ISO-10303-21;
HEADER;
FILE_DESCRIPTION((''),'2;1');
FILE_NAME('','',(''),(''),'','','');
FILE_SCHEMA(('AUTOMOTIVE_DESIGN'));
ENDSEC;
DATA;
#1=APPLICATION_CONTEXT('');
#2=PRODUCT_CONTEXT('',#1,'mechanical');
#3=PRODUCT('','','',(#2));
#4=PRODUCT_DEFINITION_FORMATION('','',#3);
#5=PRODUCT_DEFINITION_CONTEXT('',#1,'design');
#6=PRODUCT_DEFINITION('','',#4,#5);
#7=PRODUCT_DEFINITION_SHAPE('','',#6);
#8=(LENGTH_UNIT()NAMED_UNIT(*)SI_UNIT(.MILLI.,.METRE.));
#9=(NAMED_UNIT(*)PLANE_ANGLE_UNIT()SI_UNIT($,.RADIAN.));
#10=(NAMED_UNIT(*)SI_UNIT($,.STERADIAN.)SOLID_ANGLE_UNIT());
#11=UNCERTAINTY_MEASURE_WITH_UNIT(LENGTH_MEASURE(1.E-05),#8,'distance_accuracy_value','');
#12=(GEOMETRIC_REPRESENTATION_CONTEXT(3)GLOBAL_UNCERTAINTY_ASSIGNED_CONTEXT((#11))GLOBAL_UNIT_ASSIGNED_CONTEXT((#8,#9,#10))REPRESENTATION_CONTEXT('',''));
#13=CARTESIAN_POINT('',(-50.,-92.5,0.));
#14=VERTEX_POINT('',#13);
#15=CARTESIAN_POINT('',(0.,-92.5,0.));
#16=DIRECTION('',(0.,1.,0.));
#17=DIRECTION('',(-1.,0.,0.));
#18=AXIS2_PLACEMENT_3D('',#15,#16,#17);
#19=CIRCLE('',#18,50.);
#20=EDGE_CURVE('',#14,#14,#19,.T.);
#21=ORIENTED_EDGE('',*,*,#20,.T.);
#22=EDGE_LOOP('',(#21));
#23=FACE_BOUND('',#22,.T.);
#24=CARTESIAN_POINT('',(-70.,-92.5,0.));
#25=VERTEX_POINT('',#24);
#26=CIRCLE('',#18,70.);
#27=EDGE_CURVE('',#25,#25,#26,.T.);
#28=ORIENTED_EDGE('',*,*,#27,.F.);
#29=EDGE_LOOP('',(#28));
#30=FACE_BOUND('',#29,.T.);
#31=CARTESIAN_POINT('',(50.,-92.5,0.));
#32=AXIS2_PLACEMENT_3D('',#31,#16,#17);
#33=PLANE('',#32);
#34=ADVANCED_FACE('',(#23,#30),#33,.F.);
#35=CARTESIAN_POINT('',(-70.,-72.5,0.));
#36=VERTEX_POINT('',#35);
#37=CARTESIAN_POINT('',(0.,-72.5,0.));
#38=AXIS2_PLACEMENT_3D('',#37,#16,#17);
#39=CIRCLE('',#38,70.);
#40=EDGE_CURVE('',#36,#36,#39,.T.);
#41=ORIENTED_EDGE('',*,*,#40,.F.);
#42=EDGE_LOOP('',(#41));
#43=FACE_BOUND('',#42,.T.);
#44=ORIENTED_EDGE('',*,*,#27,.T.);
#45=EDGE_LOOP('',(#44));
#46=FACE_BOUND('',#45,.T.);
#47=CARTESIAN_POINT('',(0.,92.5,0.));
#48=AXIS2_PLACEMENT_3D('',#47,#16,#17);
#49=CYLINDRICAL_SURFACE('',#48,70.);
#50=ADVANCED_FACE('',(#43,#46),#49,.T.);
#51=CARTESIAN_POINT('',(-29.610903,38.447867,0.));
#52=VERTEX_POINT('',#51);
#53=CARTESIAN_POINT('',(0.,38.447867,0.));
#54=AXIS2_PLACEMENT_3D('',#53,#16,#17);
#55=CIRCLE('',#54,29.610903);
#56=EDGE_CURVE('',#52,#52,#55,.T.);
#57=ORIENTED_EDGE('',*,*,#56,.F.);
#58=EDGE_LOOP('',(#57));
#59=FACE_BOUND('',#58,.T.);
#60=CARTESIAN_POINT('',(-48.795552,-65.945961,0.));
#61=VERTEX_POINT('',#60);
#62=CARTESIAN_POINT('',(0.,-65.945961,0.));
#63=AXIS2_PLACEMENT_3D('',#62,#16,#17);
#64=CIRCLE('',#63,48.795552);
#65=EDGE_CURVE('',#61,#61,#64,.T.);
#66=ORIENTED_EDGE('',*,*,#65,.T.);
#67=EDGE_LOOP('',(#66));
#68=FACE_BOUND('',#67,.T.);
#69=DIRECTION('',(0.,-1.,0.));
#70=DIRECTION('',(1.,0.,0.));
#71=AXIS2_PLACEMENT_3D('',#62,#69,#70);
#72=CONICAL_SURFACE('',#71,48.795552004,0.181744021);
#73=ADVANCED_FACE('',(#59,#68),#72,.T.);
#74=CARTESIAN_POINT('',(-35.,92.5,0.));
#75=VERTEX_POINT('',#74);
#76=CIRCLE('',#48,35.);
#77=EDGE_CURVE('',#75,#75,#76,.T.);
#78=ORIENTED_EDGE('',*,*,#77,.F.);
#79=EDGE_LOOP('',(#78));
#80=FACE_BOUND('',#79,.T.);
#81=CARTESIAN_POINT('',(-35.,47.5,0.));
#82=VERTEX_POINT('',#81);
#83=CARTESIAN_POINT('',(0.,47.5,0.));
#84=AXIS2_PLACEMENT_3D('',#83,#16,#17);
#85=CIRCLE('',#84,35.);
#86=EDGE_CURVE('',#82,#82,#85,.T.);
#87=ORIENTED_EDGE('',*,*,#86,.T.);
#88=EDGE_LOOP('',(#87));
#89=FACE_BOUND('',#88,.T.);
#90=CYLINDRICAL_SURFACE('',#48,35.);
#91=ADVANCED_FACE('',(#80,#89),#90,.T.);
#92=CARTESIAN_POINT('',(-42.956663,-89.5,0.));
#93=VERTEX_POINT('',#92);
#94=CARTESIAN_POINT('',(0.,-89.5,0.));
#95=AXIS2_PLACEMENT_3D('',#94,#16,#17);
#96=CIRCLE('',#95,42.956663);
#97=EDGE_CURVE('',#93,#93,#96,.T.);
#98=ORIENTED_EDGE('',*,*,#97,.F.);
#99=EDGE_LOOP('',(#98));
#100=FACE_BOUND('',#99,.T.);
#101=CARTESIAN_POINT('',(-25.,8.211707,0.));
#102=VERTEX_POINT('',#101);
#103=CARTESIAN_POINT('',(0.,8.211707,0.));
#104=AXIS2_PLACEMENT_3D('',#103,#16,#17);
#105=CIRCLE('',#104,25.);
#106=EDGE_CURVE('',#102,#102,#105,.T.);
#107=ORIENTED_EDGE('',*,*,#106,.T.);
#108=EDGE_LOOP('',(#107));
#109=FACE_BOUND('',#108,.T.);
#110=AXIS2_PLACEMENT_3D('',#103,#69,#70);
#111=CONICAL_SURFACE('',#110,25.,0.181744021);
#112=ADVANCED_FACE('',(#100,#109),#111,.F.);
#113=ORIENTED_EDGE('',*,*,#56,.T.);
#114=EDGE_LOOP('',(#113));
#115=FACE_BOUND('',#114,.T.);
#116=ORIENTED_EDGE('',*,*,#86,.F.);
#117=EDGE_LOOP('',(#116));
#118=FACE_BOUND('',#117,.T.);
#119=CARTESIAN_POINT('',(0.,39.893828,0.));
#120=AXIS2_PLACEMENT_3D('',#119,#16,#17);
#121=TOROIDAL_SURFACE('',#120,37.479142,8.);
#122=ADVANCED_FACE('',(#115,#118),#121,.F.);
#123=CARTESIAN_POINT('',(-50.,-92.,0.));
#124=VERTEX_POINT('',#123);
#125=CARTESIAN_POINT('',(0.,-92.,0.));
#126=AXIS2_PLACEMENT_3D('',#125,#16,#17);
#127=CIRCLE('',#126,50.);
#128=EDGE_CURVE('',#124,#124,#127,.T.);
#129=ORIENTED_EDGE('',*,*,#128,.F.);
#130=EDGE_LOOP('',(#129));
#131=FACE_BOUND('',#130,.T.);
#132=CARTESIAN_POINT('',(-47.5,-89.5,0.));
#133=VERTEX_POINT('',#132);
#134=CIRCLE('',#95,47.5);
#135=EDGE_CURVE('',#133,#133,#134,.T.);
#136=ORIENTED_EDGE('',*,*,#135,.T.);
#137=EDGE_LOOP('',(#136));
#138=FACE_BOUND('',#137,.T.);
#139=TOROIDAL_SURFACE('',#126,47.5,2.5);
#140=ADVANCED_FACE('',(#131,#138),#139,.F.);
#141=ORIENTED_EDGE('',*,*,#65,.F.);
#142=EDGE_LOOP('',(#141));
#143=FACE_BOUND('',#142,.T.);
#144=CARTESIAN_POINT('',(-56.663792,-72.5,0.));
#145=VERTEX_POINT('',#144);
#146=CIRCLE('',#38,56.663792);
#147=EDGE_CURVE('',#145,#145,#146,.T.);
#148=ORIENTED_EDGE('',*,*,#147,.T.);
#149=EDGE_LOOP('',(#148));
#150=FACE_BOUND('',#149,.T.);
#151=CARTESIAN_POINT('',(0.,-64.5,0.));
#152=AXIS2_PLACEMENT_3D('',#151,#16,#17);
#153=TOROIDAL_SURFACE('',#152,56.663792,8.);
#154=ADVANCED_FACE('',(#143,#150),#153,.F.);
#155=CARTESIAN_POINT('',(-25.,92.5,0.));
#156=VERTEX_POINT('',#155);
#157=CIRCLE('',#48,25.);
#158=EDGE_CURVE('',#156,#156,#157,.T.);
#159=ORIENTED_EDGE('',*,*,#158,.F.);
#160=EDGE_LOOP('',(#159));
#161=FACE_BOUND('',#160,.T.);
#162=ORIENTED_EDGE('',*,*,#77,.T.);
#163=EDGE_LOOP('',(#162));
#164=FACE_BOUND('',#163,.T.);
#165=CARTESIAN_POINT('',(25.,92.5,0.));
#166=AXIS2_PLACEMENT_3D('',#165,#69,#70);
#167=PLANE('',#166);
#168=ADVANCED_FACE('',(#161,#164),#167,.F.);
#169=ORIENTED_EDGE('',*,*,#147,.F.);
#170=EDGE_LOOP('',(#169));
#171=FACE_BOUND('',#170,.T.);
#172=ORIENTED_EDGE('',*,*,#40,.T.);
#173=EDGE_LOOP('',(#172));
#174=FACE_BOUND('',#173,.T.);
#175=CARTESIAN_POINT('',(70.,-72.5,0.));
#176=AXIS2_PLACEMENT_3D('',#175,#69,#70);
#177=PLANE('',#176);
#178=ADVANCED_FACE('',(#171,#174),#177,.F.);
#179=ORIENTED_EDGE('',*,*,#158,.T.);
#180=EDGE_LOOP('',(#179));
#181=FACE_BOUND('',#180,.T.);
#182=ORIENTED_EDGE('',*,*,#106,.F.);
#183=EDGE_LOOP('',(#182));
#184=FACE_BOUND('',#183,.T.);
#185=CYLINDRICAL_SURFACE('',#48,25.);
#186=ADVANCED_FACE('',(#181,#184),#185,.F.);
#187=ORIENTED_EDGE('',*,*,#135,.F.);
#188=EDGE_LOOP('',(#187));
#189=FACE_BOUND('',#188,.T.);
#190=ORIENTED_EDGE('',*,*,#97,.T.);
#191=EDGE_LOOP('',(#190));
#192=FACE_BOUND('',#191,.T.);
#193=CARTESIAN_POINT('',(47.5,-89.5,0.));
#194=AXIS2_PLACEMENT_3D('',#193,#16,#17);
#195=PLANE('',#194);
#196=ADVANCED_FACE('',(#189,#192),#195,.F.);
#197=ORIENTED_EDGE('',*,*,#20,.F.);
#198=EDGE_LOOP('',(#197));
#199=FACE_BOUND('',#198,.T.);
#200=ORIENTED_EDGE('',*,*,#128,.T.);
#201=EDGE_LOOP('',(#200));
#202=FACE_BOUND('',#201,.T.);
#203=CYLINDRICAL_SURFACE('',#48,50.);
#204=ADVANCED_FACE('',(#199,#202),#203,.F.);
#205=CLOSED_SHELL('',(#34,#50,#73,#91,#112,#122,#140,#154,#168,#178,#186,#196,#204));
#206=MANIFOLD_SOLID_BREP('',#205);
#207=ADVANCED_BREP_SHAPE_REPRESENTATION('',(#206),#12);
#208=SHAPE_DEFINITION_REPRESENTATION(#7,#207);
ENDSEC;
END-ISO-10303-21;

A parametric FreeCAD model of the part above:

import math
import FreeCAD as App
import Part
import Sketcher
Q = App.Units.Quantity

doc = App.newDocument("Part")
body = doc.addObject("PartDesign::Body", "Body")

# Sketch on XY plane
sketch1 = body.newObject("Sketcher::SketchObject", "Sketch")
sketch1.AttachmentSupport = (doc.getObject("XY_Plane"), [""])
sketch1.MapMode = "FlatFace"
sketch1.addGeometry([
    Part.LineSegment(App.Vector(25, 92.5, 0), App.Vector(25, 8.211707, 0)),  # 0
    Part.LineSegment(App.Vector(25, 8.211707, 0), App.Vector(42.956663, -89.5, 0)),  # 1
    Part.LineSegment(App.Vector(42.956663, -89.5, 0), App.Vector(47.5, -89.5, 0)),  # 2
    Part.ArcOfCircle(Part.Circle(App.Vector(47.5, -92, 0), App.Vector(0, 0, 1), 2.5), math.radians(0), math.radians(90)),  # 3
    Part.LineSegment(App.Vector(50, -92, 0), App.Vector(50, -92.5, 0)),  # 4
    Part.LineSegment(App.Vector(50, -92.5, 0), App.Vector(70, -92.5, 0)),  # 5
    Part.LineSegment(App.Vector(70, -92.5, 0), App.Vector(70, -72.5, 0)),  # 6
    Part.LineSegment(App.Vector(70, -72.5, 0), App.Vector(56.663792, -72.5, 0)),  # 7
    Part.ArcOfCircle(Part.Circle(App.Vector(56.663792, -64.5, 0), App.Vector(0, 0, 1), 8), math.radians(-169.586835), math.radians(-90)),  # 8
    Part.LineSegment(App.Vector(48.795552, -65.945961, 0), App.Vector(29.610903, 38.447867, 0)),  # 9
    Part.ArcOfCircle(Part.Circle(App.Vector(37.479142, 39.893828, 0), App.Vector(0, 0, 1), 8), math.radians(108.05277), math.radians(190.413165)),  # 10
    Part.LineSegment(App.Vector(35, 47.5, 0), App.Vector(35, 92.5, 0)),  # 11
    Part.LineSegment(App.Vector(35, 92.5, 0), App.Vector(25, 92.5, 0)),  # 12
], False)
sketch1.addConstraint([
    Sketcher.Constraint("Coincident", 0, 2, 1, 1),
    Sketcher.Constraint("Coincident", 1, 2, 2, 1),
    Sketcher.Constraint("Tangent", 2, 2, 3, 2),
    Sketcher.Constraint("Tangent", 3, 1, 4, 1),
    Sketcher.Constraint("Coincident", 4, 2, 5, 1),
    Sketcher.Constraint("Coincident", 5, 2, 6, 1),
    Sketcher.Constraint("Coincident", 6, 2, 7, 1),
    Sketcher.Constraint("Tangent", 7, 2, 8, 2),
    Sketcher.Constraint("Tangent", 8, 1, 9, 1),
    Sketcher.Constraint("Tangent", 9, 2, 10, 2),
    Sketcher.Constraint("Coincident", 10, 1, 11, 1),
    Sketcher.Constraint("Coincident", 11, 2, 12, 1),
    Sketcher.Constraint("Coincident", 12, 2, 0, 1),
    Sketcher.Constraint("Vertical", 0),
    Sketcher.Constraint("Horizontal", 2),
    Sketcher.Constraint("Vertical", 4),
    Sketcher.Constraint("Horizontal", 5),
    Sketcher.Constraint("Vertical", 6),
    Sketcher.Constraint("Horizontal", 7),
    Sketcher.Constraint("Vertical", 11),
    Sketcher.Constraint("Horizontal", 12),
    Sketcher.Constraint("Equal", 8, 10),
    Sketcher.Constraint("Parallel", 1, 9),
    Sketcher.Constraint("Equal", 5, 6),
    Sketcher.Constraint("Radius", 8, Q("8 mm")),
    Sketcher.Constraint("Radius", 3, Q("2.5 mm")),
    Sketcher.Constraint("DistanceX", 5, 1, 5, 2, Q("20 mm")),
    Sketcher.Constraint("DistanceX", 12, 2, 12, 1, Q("10 mm")),
    Sketcher.Constraint("DistanceY", 11, 1, 11, 2, Q("45 mm")),
    Sketcher.Constraint("DistanceY", 4, 2, 4, 1, Q("0.5 mm")),
    Sketcher.Constraint("DistanceY", 3, 3, -1, 1, Q("92 mm")),
    Sketcher.Constraint("DistanceX", -1, 1, 0, 2, Q("25 mm")),
    Sketcher.Constraint("DistanceX", -1, 1, 3, 1, Q("50 mm")),
    Sketcher.Constraint("DistanceY", 8, 3, 10, 1, Q("112 mm")),
    Sketcher.Constraint("DistanceX", 7, 2, 7, 1, Q("13.336208 mm")),
    Sketcher.Constraint("Distance", 1, Q("99.347972 mm")),
    Sketcher.Constraint("Distance", 9, Q("106.14199 mm")),
])
revolution = body.newObject("PartDesign::Revolution", "Revolution")
revolution.Profile = sketch1
revolution.ReferenceAxis = (sketch1, ["V_Axis"])
revolution.Angle = 360

doc.recompute()
